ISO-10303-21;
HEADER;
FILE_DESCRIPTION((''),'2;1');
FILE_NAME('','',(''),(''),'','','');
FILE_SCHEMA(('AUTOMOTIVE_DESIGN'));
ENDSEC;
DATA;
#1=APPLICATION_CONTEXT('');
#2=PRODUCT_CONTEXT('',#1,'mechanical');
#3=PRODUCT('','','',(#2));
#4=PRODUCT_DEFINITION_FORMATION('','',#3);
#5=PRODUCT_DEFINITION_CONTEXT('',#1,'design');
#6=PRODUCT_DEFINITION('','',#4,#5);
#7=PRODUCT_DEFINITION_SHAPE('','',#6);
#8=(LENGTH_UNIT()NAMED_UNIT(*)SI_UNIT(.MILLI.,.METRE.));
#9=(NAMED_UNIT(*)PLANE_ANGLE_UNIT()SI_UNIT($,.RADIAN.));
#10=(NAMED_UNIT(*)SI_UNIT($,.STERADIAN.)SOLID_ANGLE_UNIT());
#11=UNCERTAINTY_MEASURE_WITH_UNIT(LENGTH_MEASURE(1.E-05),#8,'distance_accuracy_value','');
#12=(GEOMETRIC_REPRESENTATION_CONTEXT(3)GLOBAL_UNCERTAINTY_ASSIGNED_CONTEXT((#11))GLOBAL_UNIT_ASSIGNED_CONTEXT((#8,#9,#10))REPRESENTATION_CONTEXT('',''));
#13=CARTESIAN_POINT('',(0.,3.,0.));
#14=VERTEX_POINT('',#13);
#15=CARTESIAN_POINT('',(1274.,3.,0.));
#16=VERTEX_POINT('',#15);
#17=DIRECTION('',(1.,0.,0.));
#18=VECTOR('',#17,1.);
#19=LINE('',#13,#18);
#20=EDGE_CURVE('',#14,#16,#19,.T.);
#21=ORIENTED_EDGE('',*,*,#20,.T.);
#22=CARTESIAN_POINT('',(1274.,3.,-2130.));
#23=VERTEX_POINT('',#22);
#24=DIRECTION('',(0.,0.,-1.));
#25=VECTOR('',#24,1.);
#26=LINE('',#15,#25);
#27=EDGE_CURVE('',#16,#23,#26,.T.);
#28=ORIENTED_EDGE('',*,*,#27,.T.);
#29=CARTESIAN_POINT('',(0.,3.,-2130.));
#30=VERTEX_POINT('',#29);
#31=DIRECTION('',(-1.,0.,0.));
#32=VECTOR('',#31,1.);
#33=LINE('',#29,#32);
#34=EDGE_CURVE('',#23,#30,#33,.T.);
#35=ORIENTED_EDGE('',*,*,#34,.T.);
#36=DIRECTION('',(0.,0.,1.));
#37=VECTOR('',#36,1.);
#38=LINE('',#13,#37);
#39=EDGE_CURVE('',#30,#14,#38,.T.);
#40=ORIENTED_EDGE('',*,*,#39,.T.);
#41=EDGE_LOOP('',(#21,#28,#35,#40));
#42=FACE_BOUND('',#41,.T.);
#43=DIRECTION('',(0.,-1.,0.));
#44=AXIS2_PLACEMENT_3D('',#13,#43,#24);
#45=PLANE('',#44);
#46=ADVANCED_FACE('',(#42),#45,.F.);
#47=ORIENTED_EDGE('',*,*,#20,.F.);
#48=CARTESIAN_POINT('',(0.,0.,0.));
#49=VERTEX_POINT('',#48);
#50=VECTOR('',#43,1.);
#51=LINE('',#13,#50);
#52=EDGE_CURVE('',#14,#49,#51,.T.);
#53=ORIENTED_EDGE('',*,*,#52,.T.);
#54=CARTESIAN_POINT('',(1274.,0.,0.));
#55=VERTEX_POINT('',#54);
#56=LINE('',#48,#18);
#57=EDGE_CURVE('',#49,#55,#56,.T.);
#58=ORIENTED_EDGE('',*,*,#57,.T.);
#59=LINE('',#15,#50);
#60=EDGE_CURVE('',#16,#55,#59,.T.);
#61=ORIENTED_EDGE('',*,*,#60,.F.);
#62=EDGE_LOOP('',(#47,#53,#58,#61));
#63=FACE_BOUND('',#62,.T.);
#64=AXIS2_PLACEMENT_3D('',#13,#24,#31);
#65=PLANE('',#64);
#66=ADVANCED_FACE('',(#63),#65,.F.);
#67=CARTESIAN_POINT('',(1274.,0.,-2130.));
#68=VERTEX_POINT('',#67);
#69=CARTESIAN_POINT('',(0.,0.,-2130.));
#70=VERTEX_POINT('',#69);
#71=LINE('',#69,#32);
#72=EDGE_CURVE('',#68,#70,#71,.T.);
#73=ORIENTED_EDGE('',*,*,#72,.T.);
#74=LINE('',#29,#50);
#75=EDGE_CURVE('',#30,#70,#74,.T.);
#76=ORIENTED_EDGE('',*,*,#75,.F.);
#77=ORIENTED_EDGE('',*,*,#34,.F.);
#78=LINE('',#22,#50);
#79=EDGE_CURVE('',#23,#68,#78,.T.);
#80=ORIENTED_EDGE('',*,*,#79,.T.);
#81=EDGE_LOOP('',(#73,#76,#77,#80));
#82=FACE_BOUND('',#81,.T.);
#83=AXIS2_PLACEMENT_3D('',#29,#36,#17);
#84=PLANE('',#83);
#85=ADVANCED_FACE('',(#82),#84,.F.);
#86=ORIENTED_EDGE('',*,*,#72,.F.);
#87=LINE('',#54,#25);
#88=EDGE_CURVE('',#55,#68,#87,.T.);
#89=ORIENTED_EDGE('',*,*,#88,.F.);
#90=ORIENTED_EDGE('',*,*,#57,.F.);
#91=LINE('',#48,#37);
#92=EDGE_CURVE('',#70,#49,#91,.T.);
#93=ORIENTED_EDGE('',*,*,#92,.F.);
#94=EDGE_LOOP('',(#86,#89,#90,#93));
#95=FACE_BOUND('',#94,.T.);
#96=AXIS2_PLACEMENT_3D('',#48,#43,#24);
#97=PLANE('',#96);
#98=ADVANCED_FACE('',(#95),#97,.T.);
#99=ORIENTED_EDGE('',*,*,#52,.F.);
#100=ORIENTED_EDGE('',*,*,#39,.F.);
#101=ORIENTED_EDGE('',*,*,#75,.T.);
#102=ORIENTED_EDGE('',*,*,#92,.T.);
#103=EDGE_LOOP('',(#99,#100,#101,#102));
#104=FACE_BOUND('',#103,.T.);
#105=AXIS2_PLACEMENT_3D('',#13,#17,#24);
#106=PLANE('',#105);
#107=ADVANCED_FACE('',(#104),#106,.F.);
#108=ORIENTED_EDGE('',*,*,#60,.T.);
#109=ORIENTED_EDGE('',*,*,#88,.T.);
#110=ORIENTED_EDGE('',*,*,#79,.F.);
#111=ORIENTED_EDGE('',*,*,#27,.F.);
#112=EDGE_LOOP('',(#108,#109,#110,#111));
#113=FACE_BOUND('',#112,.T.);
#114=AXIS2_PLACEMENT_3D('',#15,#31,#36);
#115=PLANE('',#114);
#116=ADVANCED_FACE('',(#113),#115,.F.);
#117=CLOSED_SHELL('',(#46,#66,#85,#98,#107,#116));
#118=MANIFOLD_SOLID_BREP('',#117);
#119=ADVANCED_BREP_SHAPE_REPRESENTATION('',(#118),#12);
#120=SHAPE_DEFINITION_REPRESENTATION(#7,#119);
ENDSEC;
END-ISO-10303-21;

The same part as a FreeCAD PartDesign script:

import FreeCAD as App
import Part
import Sketcher
from FreeCAD import Vector


def add_polygon(sketch, points):
    """Adds a closed chain of lines whose ends are joined by coincident constraints."""
    first, n = sketch.GeometryCount, len(points)
    for a, b in zip(points, points[1:] + points[:1]):
        sketch.addGeometry(Part.LineSegment(App.Vector(*a, 0), App.Vector(*b, 0)), False)
    for i in range(n):
        sketch.addConstraint(Sketcher.Constraint("Coincident", first + i, 2, first + (i + 1) % n, 1))

doc = App.newDocument("Part")
body = doc.addObject("PartDesign::Body", "Body")

# Sketch on XZ plane
sketch1 = body.newObject("Sketcher::SketchObject", "Sketch")
sketch1.AttachmentSupport = (doc.getObject("XZ_Plane"), [""])
sketch1.MapMode = "FlatFace"
add_polygon(sketch1, [(0, -2130), (0, 0), (1274, 0), (1274, -2130)])  # lines 0-3
sketch1.addConstraint(Sketcher.Constraint("Vertical", 0))
sketch1.addConstraint(Sketcher.Constraint("Horizontal", 1))
sketch1.addConstraint(Sketcher.Constraint("Vertical", 2))
sketch1.addConstraint(Sketcher.Constraint("Horizontal", 3))
sketch1.addConstraint(Sketcher.Constraint("Coincident", 0, 2, -1, 1))
sketch1.addConstraint(Sketcher.Constraint("DistanceX", 1, 1, 1, 2, 1274.0))
sketch1.addConstraint(Sketcher.Constraint("DistanceY", 0, 1, 0, 2, 2130.0))
pad1 = body.newObject("PartDesign::Pad", "Pad")
pad1.Profile = sketch1
pad1.Length = 3
pad1.Reversed = True

doc.recompute()
